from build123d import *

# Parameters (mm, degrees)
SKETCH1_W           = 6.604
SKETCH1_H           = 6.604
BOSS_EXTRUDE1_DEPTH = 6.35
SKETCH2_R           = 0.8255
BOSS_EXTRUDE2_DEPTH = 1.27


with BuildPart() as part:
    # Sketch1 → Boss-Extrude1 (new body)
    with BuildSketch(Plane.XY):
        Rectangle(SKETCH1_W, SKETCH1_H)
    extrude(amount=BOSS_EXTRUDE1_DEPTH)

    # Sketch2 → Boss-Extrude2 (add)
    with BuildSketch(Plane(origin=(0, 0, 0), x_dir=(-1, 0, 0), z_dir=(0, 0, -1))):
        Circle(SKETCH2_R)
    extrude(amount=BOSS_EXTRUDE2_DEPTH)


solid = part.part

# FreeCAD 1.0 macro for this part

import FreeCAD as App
import Part
import Sketcher

V = App.Vector
Q = App.Units.Quantity

doc = App.newDocument("Part")
params = doc.addObject("Spreadsheet::Sheet", "Params")
for row, (alias, value) in enumerate([
    ("sketch1_width", "0.26 in"),
    ("pad1_length", "0.25 in"),
    ("sketch2_diameter", "0.065 in"),
    ("pad2_length", "0.05 in"),
], start=1):
    params.set(f"A{row}", alias)
    params.set(f"B{row}", "=" + value)
    params.setAlias(f"B{row}", alias)

body = doc.addObject("PartDesign::Body", "Body")

# Sketch on XY plane
sketch1 = body.newObject("Sketcher::SketchObject", "Sketch")
sketch1.AttachmentSupport = (doc.getObject("XY_Plane"), [""])
sketch1.MapMode = "FlatFace"
sketch1.addGeometry([
    Part.LineSegment(V(-3, 3, 0), V(-3, -3, 0)),
    Part.LineSegment(V(-3, -3, 0), V(3, -3, 0)),
    Part.LineSegment(V(3, -3, 0), V(3, 3, 0)),
    Part.LineSegment(V(3, 3, 0), V(-3, 3, 0)),
], False)
sketch1.addConstraint([
    Sketcher.Constraint("Coincident", 0, 2, 1, 1),
    Sketcher.Constraint("Coincident", 1, 2, 2, 1),
    Sketcher.Constraint("Coincident", 2, 2, 3, 1),
    Sketcher.Constraint("Coincident", 3, 2, 0, 1),
    Sketcher.Constraint("Vertical", 0),
    Sketcher.Constraint("Horizontal", 1),
    Sketcher.Constraint("Vertical", 2),
    Sketcher.Constraint("Horizontal", 3),
    Sketcher.Constraint("Symmetric", 0, 2, 2, 2, -1, 1),
    Sketcher.Constraint("Equal", 3, 0),
    Sketcher.Constraint("DistanceX", 1, 1, 1, 2, Q("0.26 in")),
])
sketch1.setExpression("Constraints[10]", "Params.sketch1_width")
pad1 = body.newObject("PartDesign::Pad", "Pad")
pad1.Profile = sketch1
pad1.setExpression("Length", "Params.pad1_length")

# Sketch on XY plane
sketch2 = body.newObject("Sketcher::SketchObject", "Sketch001")
sketch2.AttachmentSupport = (doc.getObject("XY_Plane"), [""])
sketch2.MapMode = "FlatFace"
sketch2.addGeometry(Part.Circle(V(0, 0, 0), V(0, 0, 1), 0.8), False)
sketch2.addConstraint([
    Sketcher.Constraint("Coincident", 0, 3, -1, 1),
    Sketcher.Constraint("Diameter", 0, Q("0.065 in")),
])
sketch2.setExpression("Constraints[1]", "Params.sketch2_diameter")
pad2 = body.newObject("PartDesign::Pad", "Pad001")
pad2.Profile = sketch2
pad2.setExpression("Length", "Params.pad2_length")
pad2.Reversed = True

doc.recompute()
